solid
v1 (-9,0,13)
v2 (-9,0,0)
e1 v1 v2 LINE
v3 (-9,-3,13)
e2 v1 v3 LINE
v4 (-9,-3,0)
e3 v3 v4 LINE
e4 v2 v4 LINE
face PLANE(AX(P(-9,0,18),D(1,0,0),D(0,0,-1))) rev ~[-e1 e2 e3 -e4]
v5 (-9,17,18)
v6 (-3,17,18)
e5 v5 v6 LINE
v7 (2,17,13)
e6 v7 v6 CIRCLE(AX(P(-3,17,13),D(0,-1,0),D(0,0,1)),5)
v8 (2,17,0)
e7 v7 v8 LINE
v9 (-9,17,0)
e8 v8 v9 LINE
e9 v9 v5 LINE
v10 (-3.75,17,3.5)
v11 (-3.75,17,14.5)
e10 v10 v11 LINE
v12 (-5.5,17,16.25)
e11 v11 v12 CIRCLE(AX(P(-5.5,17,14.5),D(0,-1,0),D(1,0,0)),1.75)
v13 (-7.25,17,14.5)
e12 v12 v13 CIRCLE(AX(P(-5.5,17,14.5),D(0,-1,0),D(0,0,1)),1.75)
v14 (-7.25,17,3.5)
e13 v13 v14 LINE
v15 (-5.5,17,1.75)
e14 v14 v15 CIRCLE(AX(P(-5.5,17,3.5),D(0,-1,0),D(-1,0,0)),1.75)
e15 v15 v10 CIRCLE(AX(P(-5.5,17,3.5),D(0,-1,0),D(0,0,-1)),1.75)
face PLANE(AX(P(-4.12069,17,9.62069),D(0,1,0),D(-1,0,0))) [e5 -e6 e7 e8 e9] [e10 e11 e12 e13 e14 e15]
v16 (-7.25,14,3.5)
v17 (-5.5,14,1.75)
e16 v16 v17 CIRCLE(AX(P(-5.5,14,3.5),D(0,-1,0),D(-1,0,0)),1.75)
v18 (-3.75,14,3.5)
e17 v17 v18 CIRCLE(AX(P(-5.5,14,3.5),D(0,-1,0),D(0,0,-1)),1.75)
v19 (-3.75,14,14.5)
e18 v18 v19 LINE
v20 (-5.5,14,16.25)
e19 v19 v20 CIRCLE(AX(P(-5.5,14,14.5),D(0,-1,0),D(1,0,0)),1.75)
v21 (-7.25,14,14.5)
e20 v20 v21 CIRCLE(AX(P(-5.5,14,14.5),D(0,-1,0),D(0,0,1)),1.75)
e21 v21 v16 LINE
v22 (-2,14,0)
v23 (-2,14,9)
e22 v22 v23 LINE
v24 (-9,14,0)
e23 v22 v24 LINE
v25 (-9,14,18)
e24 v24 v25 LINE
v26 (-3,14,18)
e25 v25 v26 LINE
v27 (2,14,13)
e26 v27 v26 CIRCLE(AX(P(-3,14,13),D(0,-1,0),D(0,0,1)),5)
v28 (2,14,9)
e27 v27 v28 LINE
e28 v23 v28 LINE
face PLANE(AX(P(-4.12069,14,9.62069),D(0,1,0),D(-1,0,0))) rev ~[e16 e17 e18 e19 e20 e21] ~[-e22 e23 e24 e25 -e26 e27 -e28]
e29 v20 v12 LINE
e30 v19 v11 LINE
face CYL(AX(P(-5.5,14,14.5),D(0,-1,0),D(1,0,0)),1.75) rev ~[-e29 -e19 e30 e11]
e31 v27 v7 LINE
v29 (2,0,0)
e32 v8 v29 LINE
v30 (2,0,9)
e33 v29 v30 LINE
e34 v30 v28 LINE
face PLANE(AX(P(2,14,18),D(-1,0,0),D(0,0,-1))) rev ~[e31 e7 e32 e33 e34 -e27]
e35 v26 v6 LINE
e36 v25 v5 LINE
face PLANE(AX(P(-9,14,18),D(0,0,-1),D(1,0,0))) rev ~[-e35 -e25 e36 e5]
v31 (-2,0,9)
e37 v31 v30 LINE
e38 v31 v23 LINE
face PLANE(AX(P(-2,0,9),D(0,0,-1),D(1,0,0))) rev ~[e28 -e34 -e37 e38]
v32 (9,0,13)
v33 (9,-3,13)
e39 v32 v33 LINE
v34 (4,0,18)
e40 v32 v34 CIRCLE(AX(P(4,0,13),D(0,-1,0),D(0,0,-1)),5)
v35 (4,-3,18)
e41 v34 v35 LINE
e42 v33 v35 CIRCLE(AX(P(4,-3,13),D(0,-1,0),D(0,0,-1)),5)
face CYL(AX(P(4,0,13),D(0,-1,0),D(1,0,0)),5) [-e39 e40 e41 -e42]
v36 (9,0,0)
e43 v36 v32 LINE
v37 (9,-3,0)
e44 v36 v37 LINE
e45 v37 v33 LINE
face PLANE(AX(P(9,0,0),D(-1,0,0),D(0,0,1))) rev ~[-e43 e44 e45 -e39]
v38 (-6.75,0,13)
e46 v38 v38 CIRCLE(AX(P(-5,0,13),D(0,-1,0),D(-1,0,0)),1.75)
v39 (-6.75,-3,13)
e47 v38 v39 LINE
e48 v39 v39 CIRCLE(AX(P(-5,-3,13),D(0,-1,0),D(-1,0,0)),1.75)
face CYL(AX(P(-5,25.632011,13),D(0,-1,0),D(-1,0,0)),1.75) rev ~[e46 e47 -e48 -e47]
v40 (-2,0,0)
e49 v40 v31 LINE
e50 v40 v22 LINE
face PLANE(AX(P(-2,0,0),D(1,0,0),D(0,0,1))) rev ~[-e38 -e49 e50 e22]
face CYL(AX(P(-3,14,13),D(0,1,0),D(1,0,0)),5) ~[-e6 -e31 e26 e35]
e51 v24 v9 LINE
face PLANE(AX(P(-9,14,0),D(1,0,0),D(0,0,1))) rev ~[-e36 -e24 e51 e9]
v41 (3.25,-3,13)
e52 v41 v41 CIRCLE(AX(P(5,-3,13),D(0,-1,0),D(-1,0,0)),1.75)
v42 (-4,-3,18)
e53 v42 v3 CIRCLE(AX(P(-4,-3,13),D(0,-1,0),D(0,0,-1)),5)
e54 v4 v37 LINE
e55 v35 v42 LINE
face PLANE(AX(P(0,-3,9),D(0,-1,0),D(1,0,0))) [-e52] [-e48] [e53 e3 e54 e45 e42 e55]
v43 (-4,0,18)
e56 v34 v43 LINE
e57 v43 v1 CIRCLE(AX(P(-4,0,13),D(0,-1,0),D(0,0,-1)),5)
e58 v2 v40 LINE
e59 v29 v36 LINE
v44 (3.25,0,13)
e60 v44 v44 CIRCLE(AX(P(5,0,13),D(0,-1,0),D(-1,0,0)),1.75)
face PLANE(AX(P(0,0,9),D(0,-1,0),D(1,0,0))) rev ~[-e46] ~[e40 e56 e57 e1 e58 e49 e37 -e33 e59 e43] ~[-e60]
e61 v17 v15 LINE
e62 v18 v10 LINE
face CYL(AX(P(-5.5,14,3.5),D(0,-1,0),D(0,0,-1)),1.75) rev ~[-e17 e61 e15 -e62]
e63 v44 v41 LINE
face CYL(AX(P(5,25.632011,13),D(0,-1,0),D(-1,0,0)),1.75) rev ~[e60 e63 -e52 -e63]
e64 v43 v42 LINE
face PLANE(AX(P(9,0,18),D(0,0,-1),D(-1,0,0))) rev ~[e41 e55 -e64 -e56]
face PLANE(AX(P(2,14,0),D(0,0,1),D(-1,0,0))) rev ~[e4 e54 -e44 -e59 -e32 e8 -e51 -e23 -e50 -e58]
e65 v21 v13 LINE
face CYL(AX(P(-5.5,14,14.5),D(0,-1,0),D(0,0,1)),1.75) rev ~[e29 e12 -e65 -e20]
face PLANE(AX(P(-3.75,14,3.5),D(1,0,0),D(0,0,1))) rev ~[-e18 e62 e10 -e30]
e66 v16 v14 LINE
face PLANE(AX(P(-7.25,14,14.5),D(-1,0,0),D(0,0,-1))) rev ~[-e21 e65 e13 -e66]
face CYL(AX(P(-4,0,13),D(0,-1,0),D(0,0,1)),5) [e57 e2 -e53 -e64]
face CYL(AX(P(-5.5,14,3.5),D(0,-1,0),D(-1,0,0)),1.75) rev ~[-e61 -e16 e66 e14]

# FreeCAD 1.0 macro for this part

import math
import FreeCAD as App
import Part
import Sketcher
from FreeCAD import Vector


def edges_at(feature, points):
    """Names of the edges that pass closest to the given points."""
    edges = feature.Shape.Edges
    near = lambda p: min(range(len(edges)), key=lambda i: edges[i].distToShape(Part.Vertex(*p))[0])
    return sorted({f"Edge{near(p) + 1}" for p in points})


def add_polygon(sketch, points):
    """Adds a closed chain of lines whose ends are joined by coincident constraints."""
    first, n = sketch.GeometryCount, len(points)
    for a, b in zip(points, points[1:] + points[:1]):
        sketch.addGeometry(Part.LineSegment(App.Vector(*a, 0), App.Vector(*b, 0)), False)
    for i in range(n):
        sketch.addConstraint(Sketcher.Constraint("Coincident", first + i, 2, first + (i + 1) % n, 1))

doc = App.newDocument("Part")
params = doc.addObject("Spreadsheet::Sheet", "Params")
for row, (alias, value) in enumerate([
    ("sketch1_width", "18 mm"),
    ("pad1_length", "3 mm"),
    ("sketch2_diameter", "3.5 mm"),
    ("hole_diameter", "3.5 mm"),
    ("sketch3_width", "4 mm"),
    ("sketch3_height", "9 mm"),
    ("pad2_length", "14 mm"),
    ("sketch4_width", "11 mm"),
    ("sketch4_height", "18 mm"),
    ("sketch4_radius", "1.75 mm"),
    ("pad3_length", "3 mm"),
    ("fillet_radius", "5 mm"),
], start=1):
    params.set(f"A{row}", alias)
    params.set(f"B{row}", "=" + value)
    params.setAlias(f"B{row}", alias)

body = doc.addObject("PartDesign::Body", "Body")

# Sketch on XZ plane
sketch1 = body.newObject("Sketcher::SketchObject", "Sketch")
sketch1.AttachmentSupport = (doc.getObject("XZ_Plane"), [""])
sketch1.MapMode = "FlatFace"
add_polygon(sketch1, [(-9, 0), (9, 0), (9, 18), (-9, 18)])  # lines 0-3
sketch1.addConstraint([
    Sketcher.Constraint("Horizontal", 0),
    Sketcher.Constraint("Vertical", 1),
    Sketcher.Constraint("Horizontal", 2),
    Sketcher.Constraint("Vertical", 3),
    Sketcher.Constraint("Symmetric", 0, 2, 3, 2, -1, 1),
    Sketcher.Constraint("Equal", 2, 1),
    Sketcher.Constraint("DistanceX", 0, 1, 0, 2, 18.0),
])
sketch1.setExpression("Constraints[10]", "Params.sketch1_width")
pad1 = body.newObject("PartDesign::Pad", "Pad")
pad1.Profile = sketch1
pad1.setExpression("Length", "Params.pad1_length")

# Sketch on XZ plane
sketch2 = body.newObject("Sketcher::SketchObject", "Sketch001")
sketch2.AttachmentSupport = (doc.getObject("XZ_Plane"), [""])
sketch2.MapMode = "FlatFace"
sketch2.addGeometry([
    Part.Circle(Vector(-5, 13, 0), Vector(0, 0, 1), 1.8),
    Part.Circle(Vector(5, 13, 0), Vector(0, 0, 1), 1.8),
], False)
sketch2.addConstraint([
    Sketcher.Constraint("Equal", 0, 1),
    Sketcher.Constraint("Symmetric", 0, 3, 1, 3, -2),
    Sketcher.Constraint("Diameter", 0, 3.5),
    Sketcher.Constraint("DistanceX", 0, 3, -1, 1, 5.0),
    Sketcher.Constraint("DistanceY", -1, 1, 0, 3, 13.0),
])
sketch2.setExpression("Constraints[2]", "Params.sketch2_diameter")
doc.recompute()
hole = body.newObject("PartDesign::Hole", "Hole")
hole.Profile = sketch2
hole.ThreadType = "None"
hole.setExpression("Diameter", "Params.hole_diameter")
hole.DepthType = "ThroughAll"
hole.Reversed = True

# Sketch on XZ plane
sketch3 = body.newObject("Sketcher::SketchObject", "Sketch002")
sketch3.AttachmentSupport = (doc.getObject("XZ_Plane"), [""])
sketch3.MapMode = "FlatFace"
add_polygon(sketch3, [(-2, 9), (-2, 0), (2, 0), (2, 9)])  # lines 0-3
sketch3.addConstraint([
    Sketcher.Constraint("Vertical", 0),
    Sketcher.Constraint("Horizontal", 1),
    Sketcher.Constraint("Vertical", 2),
    Sketcher.Constraint("Horizontal", 3),
    Sketcher.Constraint("Symmetric", 0, 2, 1, 2, -1, 1),
    Sketcher.Constraint("DistanceX", 1, 1, 1, 2, 4.0),
    Sketcher.Constraint("DistanceY", 0, 2, 0, 1, 9.0),
])
sketch3.setExpression("Constraints[9]", "Params.sketch3_width")
sketch3.setExpression("Constraints[10]", "Params.sketch3_height")
pad2 = body.newObject("PartDesign::Pad", "Pad001")
pad2.Profile = sketch3
pad2.setExpression("Length", "Params.pad2_length")
pad2.Reversed = True

# Sketch on XZ plane
sketch4 = body.newObject("Sketcher::SketchObject", "Sketch003")
sketch4.AttachmentSupport = (doc.getObject("XZ_Plane"), [""])
sketch4.MapMode = "FlatFace"
sketch4.AttachmentOffset = App.Placement(Vector(0, 0, -14), App.Rotation())
add_polygon(sketch4, [(-9, 0), (-9, 18), (2, 18), (2, 0)])  # lines 0-3
sketch4.addGeometry(Part.ArcOfCircle(Part.Circle(Vector(-5.5, 14.5, 0), Vector(0, 0, 1), 1.8), math.radians(0), math.radians(90)), False)  # 4
sketch4.addGeometry(Part.ArcOfCircle(Part.Circle(Vector(-5.5, 14.5, 0), Vector(0, 0, 1), 1.8), math.radians(90), math.radians(180)), False)  # 5
sketch4.addGeometry(Part.LineSegment(Vector(-7.2, 14.5, 0), Vector(-7.2, 3.5, 0)), False)  # 6
sketch4.addGeometry(Part.ArcOfCircle(Part.Circle(Vector(-5.5, 3.5, 0), Vector(0, 0, 1), 1.8), math.radians(180), math.radians(270)), False)  # 7
sketch4.addGeometry(Part.ArcOfCircle(Part.Circle(Vector(-5.5, 3.5, 0), Vector(0, 0, 1), 1.8), math.radians(-90), math.radians(0)), False)  # 8
sketch4.addGeometry(Part.LineSegment(Vector(-3.8, 3.5, 0), Vector(-3.8, 14.5, 0)), False)  # 9
sketch4.addConstraint([
    Sketcher.Constraint("Tangent", 4, 2, 5, 1),
    Sketcher.Constraint("Tangent", 5, 2, 6, 1),
    Sketcher.Constraint("Tangent", 6, 2, 7, 1),
    Sketcher.Constraint("Tangent", 7, 2, 8, 1),
    Sketcher.Constraint("Tangent", 8, 2, 9, 1),
    Sketcher.Constraint("Tangent", 9, 2, 4, 1),
    Sketcher.Constraint("Vertical", 0),
    Sketcher.Constraint("Horizontal", 1),
    Sketcher.Constraint("Vertical", 2),
    Sketcher.Constraint("Horizontal", 3),
    Sketcher.Constraint("Vertical", 6),
    Sketcher.Constraint("Vertical", 9),
    Sketcher.Constraint("Equal", 4, 5),
    Sketcher.Constraint("Equal", 5, 7),
    Sketcher.Constraint("PointOnObject", 2, 2, -1),
    Sketcher.Constraint("Vertical", 8, 3, 4, 2),
    Sketcher.Constraint("Vertical", 4, 2, 7, 2),
    Sketcher.Constraint("Equal", 3, 6),
    Sketcher.Constraint("DistanceX", 1, 1, 1, 2, 11.0),
    Sketcher.Constraint("DistanceY", 0, 1, 0, 2, 18.0),
    Sketcher.Constraint("Radius", 4, 1.75),
    Sketcher.Constraint("DistanceX", 0, 2, -1, 1, 9.0),
    Sketcher.Constraint("DistanceX", 4, 3, -1, 1, 5.5),
    Sketcher.Constraint("DistanceY", -1, 1, 4, 3, 14.5),
])
sketch4.setExpression("Constraints[22]", "Params.sketch4_width")
sketch4.setExpression("Constraints[23]", "Params.sketch4_height")
sketch4.setExpression("Constraints[24]", "Params.sketch4_radius")
pad3 = body.newObject("PartDesign::Pad", "Pad002")
pad3.Profile = sketch4
pad3.setExpression("Length", "Params.pad3_length")
pad3.Reversed = True
doc.recompute()

fillet = body.newObject("PartDesign::Fillet", "Fillet")
fillet.Base = (pad3, edges_at(pad3, [(9, -1.5, 18), (-9, -1.5, 18), (2, 15.5, 18)]))
fillet.setExpression("Radius", "Params.fillet_radius")

doc.recompute()
